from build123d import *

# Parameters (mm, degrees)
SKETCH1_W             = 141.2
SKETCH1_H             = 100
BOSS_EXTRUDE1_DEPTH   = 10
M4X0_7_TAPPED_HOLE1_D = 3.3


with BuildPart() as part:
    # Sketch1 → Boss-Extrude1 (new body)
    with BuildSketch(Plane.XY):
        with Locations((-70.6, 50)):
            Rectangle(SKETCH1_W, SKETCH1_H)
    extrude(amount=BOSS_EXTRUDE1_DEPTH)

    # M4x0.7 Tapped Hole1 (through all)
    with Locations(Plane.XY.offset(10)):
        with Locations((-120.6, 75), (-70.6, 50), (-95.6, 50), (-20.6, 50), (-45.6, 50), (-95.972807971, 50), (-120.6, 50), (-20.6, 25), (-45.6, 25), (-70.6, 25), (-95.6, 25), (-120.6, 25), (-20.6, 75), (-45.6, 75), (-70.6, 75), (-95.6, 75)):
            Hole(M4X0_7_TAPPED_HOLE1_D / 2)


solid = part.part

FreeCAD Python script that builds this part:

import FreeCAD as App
import Part
import Sketcher
from FreeCAD import Vector

doc = App.newDocument("Part")
body = doc.addObject("PartDesign::Body", "Body")

# Sketch on XY plane
sketch1 = doc.addObject("Sketcher::SketchObject", "Sketch")
body.addObject(sketch1)
sketch1.AttachmentSupport = (doc.XY_Plane, [""])
sketch1.MapMode = "FlatFace"
sketch1.addGeometry(Part.LineSegment(Vector(-141, 100, 0), Vector(-141, 0, 0)), False)
sketch1.addGeometry(Part.LineSegment(Vector(-141, 0, 0), Vector(0, 0, 0)), False)
sketch1.addGeometry(Part.LineSegment(Vector(0, 0, 0), Vector(0, 100, 0)), False)
sketch1.addGeometry(Part.LineSegment(Vector(0, 100, 0), Vector(-141, 100, 0)), False)
sketch1.addConstraint(Sketcher.Constraint("Coincident", 0, 2, 1, 1))
sketch1.addConstraint(Sketcher.Constraint("Coincident", 1, 2, 2, 1))
sketch1.addConstraint(Sketcher.Constraint("Coincident", 2, 2, 3, 1))
sketch1.addConstraint(Sketcher.Constraint("Coincident", 3, 2, 0, 1))
sketch1.addConstraint(Sketcher.Constraint("Vertical", 0))
sketch1.addConstraint(Sketcher.Constraint("Horizontal", 1))
sketch1.addConstraint(Sketcher.Constraint("Vertical", 2))
sketch1.addConstraint(Sketcher.Constraint("Horizontal", 3))
sketch1.addConstraint(Sketcher.Constraint("Coincident", 1, 2, -1, 1))
sketch1.addConstraint(Sketcher.Constraint("DistanceY", 0, 2, 0, 1, 100.0))
sketch1.addConstraint(Sketcher.Constraint("DistanceX", 1, 1, 1, 2, 141.2))
pad1 = doc.addObject("PartDesign::Pad", "Pad")
body.addObject(pad1)
pad1.Profile = sketch1
pad1.Length = 10

# Sketch on XY plane
sketch2 = doc.addObject("Sketcher::SketchObject", "Sketch001")
body.addObject(sketch2)
sketch2.AttachmentSupport = (doc.XY_Plane, [""])
sketch2.MapMode = "FlatFace"
sketch2.AttachmentOffset = App.Placement(Vector(0, 0, 10), App.Rotation())
sketch2.addGeometry(Part.Circle(Vector(-120.6, 75, 0), Vector(0, 0, 1), 1.6), False)
sketch2.addGeometry(Part.Circle(Vector(-70.6, 50, 0), Vector(0, 0, 1), 1.6), False)
sketch2.addGeometry(Part.Circle(Vector(-95.6, 50, 0), Vector(0, 0, 1), 1.6), False)
sketch2.addGeometry(Part.Circle(Vector(-20.6, 50, 0), Vector(0, 0, 1), 1.6), False)
sketch2.addGeometry(Part.Circle(Vector(-45.6, 50, 0), Vector(0, 0, 1), 1.6), False)
sketch2.addGeometry(Part.Circle(Vector(-96, 50, 0), Vector(0, 0, 1), 1.6), False)
sketch2.addGeometry(Part.Circle(Vector(-120.6, 50, 0), Vector(0, 0, 1), 1.6), False)
sketch2.addGeometry(Part.Circle(Vector(-20.6, 25, 0), Vector(0, 0, 1), 1.6), False)
sketch2.addGeometry(Part.Circle(Vector(-45.6, 25, 0), Vector(0, 0, 1), 1.6), False)
sketch2.addGeometry(Part.Circle(Vector(-70.6, 25, 0), Vector(0, 0, 1), 1.6), False)
sketch2.addGeometry(Part.Circle(Vector(-95.6, 25, 0), Vector(0, 0, 1), 1.6), False)
sketch2.addGeometry(Part.Circle(Vector(-120.6, 25, 0), Vector(0, 0, 1), 1.6), False)
sketch2.addGeometry(Part.Circle(Vector(-20.6, 75, 0), Vector(0, 0, 1), 1.6), False)
sketch2.addGeometry(Part.Circle(Vector(-45.6, 75, 0), Vector(0, 0, 1), 1.6), False)
sketch2.addGeometry(Part.Circle(Vector(-70.6, 75, 0), Vector(0, 0, 1), 1.6), False)
sketch2.addGeometry(Part.Circle(Vector(-95.6, 75, 0), Vector(0, 0, 1), 1.6), False)
sketch2.addConstraint(Sketcher.Constraint("Equal", 0, 1))
sketch2.addConstraint(Sketcher.Constraint("Equal", 1, 2))
sketch2.addConstraint(Sketcher.Constraint("Equal", 2, 3))
sketch2.addConstraint(Sketcher.Constraint("Equal", 3, 4))
sketch2.addConstraint(Sketcher.Constraint("Equal", 4, 5))
sketch2.addConstraint(Sketcher.Constraint("Equal", 5, 6))
sketch2.addConstraint(Sketcher.Constraint("Equal", 6, 7))
sketch2.addConstraint(Sketcher.Constraint("Equal", 7, 8))
sketch2.addConstraint(Sketcher.Constraint("Equal", 8, 9))
sketch2.addConstraint(Sketcher.Constraint("Equal", 9, 10))
sketch2.addConstraint(Sketcher.Constraint("Equal", 10, 11))
sketch2.addConstraint(Sketcher.Constraint("Equal", 11, 12))
sketch2.addConstraint(Sketcher.Constraint("Equal", 12, 13))
sketch2.addConstraint(Sketcher.Constraint("Equal", 13, 14))
sketch2.addConstraint(Sketcher.Constraint("Equal", 14, 15))
sketch2.addConstraint(Sketcher.Constraint("Horizontal", 1, 3, 2, 3))
sketch2.addConstraint(Sketcher.Constraint("Horizontal", 2, 3, 3, 3))
sketch2.addConstraint(Sketcher.Constraint("Horizontal", 3, 3, 4, 3))
sketch2.addConstraint(Sketcher.Constraint("Horizontal", 4, 3, 5, 3))
sketch2.addConstraint(Sketcher.Constraint("Horizontal", 5, 3, 6, 3))
sketch2.addConstraint(Sketcher.Constraint("Horizontal", 7, 3, 8, 3))
sketch2.addConstraint(Sketcher.Constraint("Horizontal", 8, 3, 9, 3))
sketch2.addConstraint(Sketcher.Constraint("Horizontal", 9, 3, 10, 3))
sketch2.addConstraint(Sketcher.Constraint("Horizontal", 10, 3, 11, 3))
sketch2.addConstraint(Sketcher.Constraint("Horizontal", 0, 3, 12, 3))
sketch2.addConstraint(Sketcher.Constraint("Horizontal", 12, 3, 13, 3))
sketch2.addConstraint(Sketcher.Constraint("Horizontal", 13, 3, 14, 3))
sketch2.addConstraint(Sketcher.Constraint("Horizontal", 14, 3, 15, 3))
sketch2.addConstraint(Sketcher.Constraint("Vertical", 0, 3, 6, 3))
sketch2.addConstraint(Sketcher.Constraint("Vertical", 3, 3, 7, 3))
sketch2.addConstraint(Sketcher.Constraint("Vertical", 4, 3, 8, 3))
sketch2.addConstraint(Sketcher.Constraint("Vertical", 1, 3, 9, 3))
sketch2.addConstraint(Sketcher.Constraint("Vertical", 2, 3, 10, 3))
sketch2.addConstraint(Sketcher.Constraint("Vertical", 6, 3, 11, 3))
sketch2.addConstraint(Sketcher.Constraint("Vertical", 7, 3, 12, 3))
sketch2.addConstraint(Sketcher.Constraint("Vertical", 8, 3, 13, 3))
sketch2.addConstraint(Sketcher.Constraint("Vertical", 9, 3, 14, 3))
sketch2.addConstraint(Sketcher.Constraint("Vertical", 10, 3, 15, 3))
sketch2.addConstraint(Sketcher.Constraint("Diameter", 0, 3.3))
sketch2.addConstraint(Sketcher.Constraint("DistanceY", -1, 1, 0, 3, 75.0))
sketch2.addConstraint(Sketcher.Constraint("DistanceY", -1, 1, 1, 3, 50.0))
sketch2.addConstraint(Sketcher.Constraint("DistanceY", -1, 1, 7, 3, 25.0))
sketch2.addConstraint(Sketcher.Constraint("DistanceX", 0, 3, 1, 3, 50.0))
sketch2.addConstraint(Sketcher.Constraint("DistanceX", 2, 3, 1, 3, 25.0))
sketch2.addConstraint(Sketcher.Constraint("DistanceX", 1, 3, 3, 3, 50.0))
sketch2.addConstraint(Sketcher.Constraint("DistanceX", 1, 3, 4, 3, 25.0))
sketch2.addConstraint(Sketcher.Constraint("DistanceX", 0, 3, -1, 1, 120.6))
sketch2.addConstraint(Sketcher.Constraint("DistanceX", 5, 3, -1, 1, 95.972808))
doc.recompute()
hole = doc.addObject("PartDesign::Hole", "Hole")
body.addObject(hole)
hole.Profile = sketch2
hole.ThreadType = "None"
hole.Diameter = 3.3
hole.DepthType = "ThroughAll"

doc.recompute()
